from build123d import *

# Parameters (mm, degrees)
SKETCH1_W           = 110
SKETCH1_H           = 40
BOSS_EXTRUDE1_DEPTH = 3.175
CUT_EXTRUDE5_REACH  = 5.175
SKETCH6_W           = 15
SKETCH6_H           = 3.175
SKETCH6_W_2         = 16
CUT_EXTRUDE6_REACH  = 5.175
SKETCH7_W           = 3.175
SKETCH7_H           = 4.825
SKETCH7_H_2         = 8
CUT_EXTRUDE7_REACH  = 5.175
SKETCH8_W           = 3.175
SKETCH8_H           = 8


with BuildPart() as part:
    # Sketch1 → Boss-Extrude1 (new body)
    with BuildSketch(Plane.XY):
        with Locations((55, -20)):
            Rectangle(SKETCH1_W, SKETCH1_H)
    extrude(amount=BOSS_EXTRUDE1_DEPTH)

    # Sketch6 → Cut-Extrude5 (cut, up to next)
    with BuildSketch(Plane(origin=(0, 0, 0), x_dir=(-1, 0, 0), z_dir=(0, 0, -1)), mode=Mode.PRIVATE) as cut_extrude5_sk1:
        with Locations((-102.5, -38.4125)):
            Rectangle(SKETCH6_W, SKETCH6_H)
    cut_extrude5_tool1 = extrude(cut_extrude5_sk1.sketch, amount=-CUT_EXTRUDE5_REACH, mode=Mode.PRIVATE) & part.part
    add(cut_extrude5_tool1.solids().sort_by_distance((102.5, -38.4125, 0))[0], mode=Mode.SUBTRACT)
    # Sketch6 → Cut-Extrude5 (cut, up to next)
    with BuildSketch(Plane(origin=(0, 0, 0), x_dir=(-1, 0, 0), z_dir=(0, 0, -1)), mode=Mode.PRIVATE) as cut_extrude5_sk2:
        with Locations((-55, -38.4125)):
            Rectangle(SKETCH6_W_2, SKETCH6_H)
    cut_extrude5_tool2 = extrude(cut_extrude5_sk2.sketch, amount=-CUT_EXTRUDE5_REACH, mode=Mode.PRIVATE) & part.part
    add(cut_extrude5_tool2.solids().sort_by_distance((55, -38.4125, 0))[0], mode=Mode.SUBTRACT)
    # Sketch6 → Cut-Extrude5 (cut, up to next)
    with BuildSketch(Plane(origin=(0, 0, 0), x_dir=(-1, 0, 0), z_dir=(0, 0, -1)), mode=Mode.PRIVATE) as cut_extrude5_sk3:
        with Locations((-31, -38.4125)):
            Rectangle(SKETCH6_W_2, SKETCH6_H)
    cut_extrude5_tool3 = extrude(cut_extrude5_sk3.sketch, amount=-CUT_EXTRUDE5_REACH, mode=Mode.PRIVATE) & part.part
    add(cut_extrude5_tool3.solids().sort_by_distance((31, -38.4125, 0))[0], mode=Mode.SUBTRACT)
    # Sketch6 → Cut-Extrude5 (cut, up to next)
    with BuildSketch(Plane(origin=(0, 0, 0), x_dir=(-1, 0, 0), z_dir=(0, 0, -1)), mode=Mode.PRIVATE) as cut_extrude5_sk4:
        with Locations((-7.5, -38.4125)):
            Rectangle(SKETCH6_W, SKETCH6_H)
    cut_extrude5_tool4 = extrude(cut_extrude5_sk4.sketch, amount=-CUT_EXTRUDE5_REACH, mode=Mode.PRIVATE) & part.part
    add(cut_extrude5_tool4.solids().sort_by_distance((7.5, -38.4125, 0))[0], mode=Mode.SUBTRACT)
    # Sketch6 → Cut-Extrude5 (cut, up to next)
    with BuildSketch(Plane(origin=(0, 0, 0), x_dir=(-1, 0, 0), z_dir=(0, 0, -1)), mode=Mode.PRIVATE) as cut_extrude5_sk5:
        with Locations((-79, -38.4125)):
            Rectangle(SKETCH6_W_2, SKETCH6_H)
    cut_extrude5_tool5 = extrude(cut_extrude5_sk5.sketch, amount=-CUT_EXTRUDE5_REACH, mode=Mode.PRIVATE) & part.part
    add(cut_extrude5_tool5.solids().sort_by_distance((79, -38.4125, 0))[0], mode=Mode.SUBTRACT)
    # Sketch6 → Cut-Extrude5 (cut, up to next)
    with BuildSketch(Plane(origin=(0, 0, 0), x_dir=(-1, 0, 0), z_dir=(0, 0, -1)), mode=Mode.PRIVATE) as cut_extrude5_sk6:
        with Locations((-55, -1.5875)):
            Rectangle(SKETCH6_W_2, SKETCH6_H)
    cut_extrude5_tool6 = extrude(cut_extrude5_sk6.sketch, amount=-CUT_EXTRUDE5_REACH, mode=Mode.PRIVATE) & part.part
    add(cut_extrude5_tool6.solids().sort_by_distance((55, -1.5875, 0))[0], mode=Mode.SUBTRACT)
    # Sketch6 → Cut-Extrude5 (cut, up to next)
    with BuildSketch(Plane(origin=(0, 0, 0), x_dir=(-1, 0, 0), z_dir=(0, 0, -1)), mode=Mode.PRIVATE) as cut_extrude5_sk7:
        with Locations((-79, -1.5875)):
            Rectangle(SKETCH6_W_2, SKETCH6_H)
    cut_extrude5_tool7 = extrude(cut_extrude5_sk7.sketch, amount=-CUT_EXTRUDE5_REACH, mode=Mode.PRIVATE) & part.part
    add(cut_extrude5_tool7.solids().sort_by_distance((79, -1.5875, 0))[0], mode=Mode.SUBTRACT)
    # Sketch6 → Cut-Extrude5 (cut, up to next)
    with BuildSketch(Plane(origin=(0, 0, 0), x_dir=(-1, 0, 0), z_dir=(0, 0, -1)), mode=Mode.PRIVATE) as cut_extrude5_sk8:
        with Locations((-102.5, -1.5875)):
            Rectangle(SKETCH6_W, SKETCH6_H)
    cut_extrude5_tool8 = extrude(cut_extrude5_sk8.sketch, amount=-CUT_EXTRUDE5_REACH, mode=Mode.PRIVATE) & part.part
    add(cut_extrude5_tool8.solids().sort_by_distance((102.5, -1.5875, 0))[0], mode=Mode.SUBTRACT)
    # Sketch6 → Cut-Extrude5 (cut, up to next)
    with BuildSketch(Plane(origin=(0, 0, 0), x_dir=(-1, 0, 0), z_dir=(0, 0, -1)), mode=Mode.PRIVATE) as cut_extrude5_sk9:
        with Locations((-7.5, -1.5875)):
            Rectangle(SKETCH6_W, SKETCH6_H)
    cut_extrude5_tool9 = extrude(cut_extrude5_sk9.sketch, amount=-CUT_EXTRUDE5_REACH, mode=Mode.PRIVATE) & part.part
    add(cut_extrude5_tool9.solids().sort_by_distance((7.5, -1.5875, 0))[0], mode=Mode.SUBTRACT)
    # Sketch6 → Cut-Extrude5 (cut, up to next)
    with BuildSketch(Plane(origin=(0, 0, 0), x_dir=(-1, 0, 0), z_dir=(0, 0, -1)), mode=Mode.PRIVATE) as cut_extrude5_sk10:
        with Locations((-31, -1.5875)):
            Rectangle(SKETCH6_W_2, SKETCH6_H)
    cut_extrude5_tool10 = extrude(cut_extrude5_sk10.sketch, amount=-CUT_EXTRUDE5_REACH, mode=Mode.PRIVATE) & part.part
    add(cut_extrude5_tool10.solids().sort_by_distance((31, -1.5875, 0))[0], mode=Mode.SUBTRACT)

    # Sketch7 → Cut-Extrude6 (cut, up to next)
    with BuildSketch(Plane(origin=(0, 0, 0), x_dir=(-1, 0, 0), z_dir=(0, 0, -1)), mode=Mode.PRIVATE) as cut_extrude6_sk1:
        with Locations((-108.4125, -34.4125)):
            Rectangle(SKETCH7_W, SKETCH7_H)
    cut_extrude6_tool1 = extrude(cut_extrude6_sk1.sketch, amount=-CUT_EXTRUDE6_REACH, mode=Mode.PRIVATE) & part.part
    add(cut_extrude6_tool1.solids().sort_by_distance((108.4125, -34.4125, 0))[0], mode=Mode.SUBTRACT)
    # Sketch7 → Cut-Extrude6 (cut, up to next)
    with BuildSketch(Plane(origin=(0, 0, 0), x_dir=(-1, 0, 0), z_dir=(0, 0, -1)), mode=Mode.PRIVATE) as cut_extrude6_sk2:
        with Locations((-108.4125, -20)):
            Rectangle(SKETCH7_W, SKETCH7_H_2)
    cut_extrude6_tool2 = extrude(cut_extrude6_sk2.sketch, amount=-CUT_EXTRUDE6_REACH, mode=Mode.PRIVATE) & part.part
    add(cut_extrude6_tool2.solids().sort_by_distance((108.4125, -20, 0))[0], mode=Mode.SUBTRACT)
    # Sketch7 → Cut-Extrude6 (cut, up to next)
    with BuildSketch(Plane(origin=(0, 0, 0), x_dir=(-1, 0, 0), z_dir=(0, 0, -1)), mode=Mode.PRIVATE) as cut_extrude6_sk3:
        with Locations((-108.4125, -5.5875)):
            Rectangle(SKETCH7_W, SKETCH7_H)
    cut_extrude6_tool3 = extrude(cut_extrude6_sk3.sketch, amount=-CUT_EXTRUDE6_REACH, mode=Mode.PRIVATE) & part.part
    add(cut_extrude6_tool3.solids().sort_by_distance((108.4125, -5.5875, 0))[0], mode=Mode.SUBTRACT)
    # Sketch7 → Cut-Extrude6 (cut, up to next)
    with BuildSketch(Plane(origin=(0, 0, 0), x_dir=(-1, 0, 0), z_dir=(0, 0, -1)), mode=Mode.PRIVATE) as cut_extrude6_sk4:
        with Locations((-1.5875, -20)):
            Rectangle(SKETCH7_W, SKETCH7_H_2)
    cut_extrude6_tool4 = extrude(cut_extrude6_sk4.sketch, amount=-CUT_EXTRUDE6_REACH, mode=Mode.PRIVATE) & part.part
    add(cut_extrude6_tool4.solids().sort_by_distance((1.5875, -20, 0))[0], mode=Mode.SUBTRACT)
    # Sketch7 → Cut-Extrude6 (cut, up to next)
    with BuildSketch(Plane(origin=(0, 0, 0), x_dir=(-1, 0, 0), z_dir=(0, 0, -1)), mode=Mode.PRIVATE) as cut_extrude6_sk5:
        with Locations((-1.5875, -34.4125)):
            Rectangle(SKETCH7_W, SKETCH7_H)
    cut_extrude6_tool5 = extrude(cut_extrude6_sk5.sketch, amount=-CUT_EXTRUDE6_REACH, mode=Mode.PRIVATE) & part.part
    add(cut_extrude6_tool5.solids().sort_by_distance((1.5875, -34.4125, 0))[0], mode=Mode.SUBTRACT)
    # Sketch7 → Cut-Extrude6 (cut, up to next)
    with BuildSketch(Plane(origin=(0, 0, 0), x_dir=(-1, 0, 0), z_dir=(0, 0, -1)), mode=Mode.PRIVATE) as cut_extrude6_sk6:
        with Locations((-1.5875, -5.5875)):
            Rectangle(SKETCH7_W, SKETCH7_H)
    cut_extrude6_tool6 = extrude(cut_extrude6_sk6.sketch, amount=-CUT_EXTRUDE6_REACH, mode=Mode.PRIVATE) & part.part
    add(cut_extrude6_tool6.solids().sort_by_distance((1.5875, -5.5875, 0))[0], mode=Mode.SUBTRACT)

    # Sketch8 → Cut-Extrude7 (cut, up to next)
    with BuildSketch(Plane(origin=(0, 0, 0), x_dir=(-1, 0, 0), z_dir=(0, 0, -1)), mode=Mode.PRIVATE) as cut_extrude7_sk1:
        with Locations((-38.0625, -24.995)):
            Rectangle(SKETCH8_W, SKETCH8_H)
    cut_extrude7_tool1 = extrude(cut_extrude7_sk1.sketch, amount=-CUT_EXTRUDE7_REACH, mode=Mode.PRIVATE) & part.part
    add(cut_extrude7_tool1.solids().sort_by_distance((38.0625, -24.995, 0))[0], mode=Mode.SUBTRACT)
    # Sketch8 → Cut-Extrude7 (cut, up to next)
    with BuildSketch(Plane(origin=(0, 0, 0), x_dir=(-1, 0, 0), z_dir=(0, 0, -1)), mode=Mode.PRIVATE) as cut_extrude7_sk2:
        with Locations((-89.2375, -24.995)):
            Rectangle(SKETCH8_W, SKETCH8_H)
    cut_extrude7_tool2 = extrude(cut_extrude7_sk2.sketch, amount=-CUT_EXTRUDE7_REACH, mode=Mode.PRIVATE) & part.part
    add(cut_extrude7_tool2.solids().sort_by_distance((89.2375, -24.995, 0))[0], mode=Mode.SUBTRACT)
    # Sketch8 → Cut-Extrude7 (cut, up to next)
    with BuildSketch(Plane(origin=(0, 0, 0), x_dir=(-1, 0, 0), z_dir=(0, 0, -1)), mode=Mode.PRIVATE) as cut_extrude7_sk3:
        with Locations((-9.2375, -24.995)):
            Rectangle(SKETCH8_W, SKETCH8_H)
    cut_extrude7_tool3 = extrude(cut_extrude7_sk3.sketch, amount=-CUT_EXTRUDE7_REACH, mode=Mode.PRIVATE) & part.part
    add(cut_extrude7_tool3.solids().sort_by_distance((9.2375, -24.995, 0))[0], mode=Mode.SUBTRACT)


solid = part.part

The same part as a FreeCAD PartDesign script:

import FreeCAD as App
import Part
import Sketcher
Q = App.Units.Quantity

doc = App.newDocument("Part")
body = doc.addObject("PartDesign::Body", "Body")

# Sketch on XY plane
sketch1 = body.newObject("Sketcher::SketchObject", "Sketch")
sketch1.AttachmentSupport = (doc.getObject("XY_Plane"), [""])
sketch1.MapMode = "FlatFace"
sketch1.addGeometry([
    Part.LineSegment(App.Vector(0, 0, 0), App.Vector(0, -40, 0)),
    Part.LineSegment(App.Vector(0, -40, 0), App.Vector(110, -40, 0)),
    Part.LineSegment(App.Vector(110, -40, 0), App.Vector(110, 0, 0)),
    Part.LineSegment(App.Vector(110, 0, 0), App.Vector(0, 0, 0)),
], False)
sketch1.addConstraint([
    Sketcher.Constraint("Coincident", 0, 2, 1, 1),
    Sketcher.Constraint("Coincident", 1, 2, 2, 1),
    Sketcher.Constraint("Coincident", 2, 2, 3, 1),
    Sketcher.Constraint("Coincident", 3, 2, 0, 1),
    Sketcher.Constraint("Vertical", 0),
    Sketcher.Constraint("Horizontal", 1),
    Sketcher.Constraint("Vertical", 2),
    Sketcher.Constraint("Horizontal", 3),
    Sketcher.Constraint("Coincident", 3, 2, -1, 1),
    Sketcher.Constraint("DistanceX", 1, 1, 1, 2, Q("110 mm")),
    Sketcher.Constraint("DistanceY", 0, 2, 0, 1, Q("40 mm")),
])
pad1 = body.newObject("PartDesign::Pad", "Pad")
pad1.Profile = sketch1
pad1.Length = 3.175

# Sketch on XY plane
sketch2 = body.newObject("Sketcher::SketchObject", "Sketch001")
sketch2.AttachmentSupport = (doc.getObject("XY_Plane"), [""])
sketch2.MapMode = "FlatFace"
sketch2.addGeometry([
    Part.LineSegment(App.Vector(110, -36.8, 0), App.Vector(110, -40, 0)),
    Part.LineSegment(App.Vector(110, -40, 0), App.Vector(95, -40, 0)),
    Part.LineSegment(App.Vector(95, -40, 0), App.Vector(95, -36.8, 0)),
    Part.LineSegment(App.Vector(95, -36.8, 0), App.Vector(110, -36.8, 0)),
], False)
sketch2.addConstraint([
    Sketcher.Constraint("Coincident", 0, 2, 1, 1),
    Sketcher.Constraint("Coincident", 1, 2, 2, 1),
    Sketcher.Constraint("Coincident", 2, 2, 3, 1),
    Sketcher.Constraint("Coincident", 3, 2, 0, 1),
    Sketcher.Constraint("Vertical", 0),
    Sketcher.Constraint("Horizontal", 1),
    Sketcher.Constraint("Vertical", 2),
    Sketcher.Constraint("Horizontal", 3),
    Sketcher.Constraint("DistanceX", 1, 2, 1, 1, Q("15 mm")),
    Sketcher.Constraint("DistanceX", -1, 1, 0, 2, Q("110 mm")),
    Sketcher.Constraint("DistanceY", 0, 2, -1, 1, Q("40 mm")),
    Sketcher.Constraint("DistanceY", 0, 2, 0, 1, Q("3.175 mm")),
])
pocket1 = body.newObject("PartDesign::Pocket", "Pocket")
pocket1.Profile = sketch2
pocket1.Type = "UpToFirst"
pocket1.Reversed = True

# Sketch on XY plane
sketch3 = body.newObject("Sketcher::SketchObject", "Sketch002")
sketch3.AttachmentSupport = (doc.getObject("XY_Plane"), [""])
sketch3.MapMode = "FlatFace"
sketch3.addGeometry([
    Part.LineSegment(App.Vector(63, -36.8, 0), App.Vector(63, -40, 0)),
    Part.LineSegment(App.Vector(63, -40, 0), App.Vector(47, -40, 0)),
    Part.LineSegment(App.Vector(47, -40, 0), App.Vector(47, -36.8, 0)),
    Part.LineSegment(App.Vector(47, -36.8, 0), App.Vector(63, -36.8, 0)),
], False)
sketch3.addConstraint([
    Sketcher.Constraint("Coincident", 0, 2, 1, 1),
    Sketcher.Constraint("Coincident", 1, 2, 2, 1),
    Sketcher.Constraint("Coincident", 2, 2, 3, 1),
    Sketcher.Constraint("Coincident", 3, 2, 0, 1),
    Sketcher.Constraint("Vertical", 0),
    Sketcher.Constraint("Horizontal", 1),
    Sketcher.Constraint("Vertical", 2),
    Sketcher.Constraint("Horizontal", 3),
    Sketcher.Constraint("DistanceX", 1, 2, 1, 1, Q("16 mm")),
    Sketcher.Constraint("DistanceX", -1, 1, 0, 2, Q("63 mm")),
    Sketcher.Constraint("DistanceY", 0, 2, -1, 1, Q("40 mm")),
    Sketcher.Constraint("DistanceY", 0, 2, 0, 1, Q("3.175 mm")),
])
pocket2 = body.newObject("PartDesign::Pocket", "Pocket001")
pocket2.Profile = sketch3
pocket2.Type = "UpToFirst"
pocket2.Reversed = True

# Sketch on XY plane
sketch4 = body.newObject("Sketcher::SketchObject", "Sketch003")
sketch4.AttachmentSupport = (doc.getObject("XY_Plane"), [""])
sketch4.MapMode = "FlatFace"
sketch4.addGeometry([
    Part.LineSegment(App.Vector(39, -36.8, 0), App.Vector(39, -40, 0)),
    Part.LineSegment(App.Vector(39, -40, 0), App.Vector(23, -40, 0)),
    Part.LineSegment(App.Vector(23, -40, 0), App.Vector(23, -36.8, 0)),
    Part.LineSegment(App.Vector(23, -36.8, 0), App.Vector(39, -36.8, 0)),
], False)
sketch4.addConstraint([
    Sketcher.Constraint("Coincident", 0, 2, 1, 1),
    Sketcher.Constraint("Coincident", 1, 2, 2, 1),
    Sketcher.Constraint("Coincident", 2, 2, 3, 1),
    Sketcher.Constraint("Coincident", 3, 2, 0, 1),
    Sketcher.Constraint("Vertical", 0),
    Sketcher.Constraint("Horizontal", 1),
    Sketcher.Constraint("Vertical", 2),
    Sketcher.Constraint("Horizontal", 3),
    Sketcher.Constraint("DistanceX", 1, 2, 1, 1, Q("16 mm")),
    Sketcher.Constraint("DistanceX", -1, 1, 0, 2, Q("39 mm")),
    Sketcher.Constraint("DistanceY", 0, 2, -1, 1, Q("40 mm")),
    Sketcher.Constraint("DistanceY", 0, 2, 0, 1, Q("3.175 mm")),
])
pocket3 = body.newObject("PartDesign::Pocket", "Pocket002")
pocket3.Profile = sketch4
pocket3.Type = "UpToFirst"
pocket3.Reversed = True

# Sketch on XY plane
sketch5 = body.newObject("Sketcher::SketchObject", "Sketch004")
sketch5.AttachmentSupport = (doc.getObject("XY_Plane"), [""])
sketch5.MapMode = "FlatFace"
sketch5.addGeometry([
    Part.LineSegment(App.Vector(15, -36.8, 0), App.Vector(15, -40, 0)),
    Part.LineSegment(App.Vector(15, -40, 0), App.Vector(0, -40, 0)),
    Part.LineSegment(App.Vector(0, -40, 0), App.Vector(0, -36.8, 0)),
    Part.LineSegment(App.Vector(0, -36.8, 0), App.Vector(15, -36.8, 0)),
], False)
sketch5.addConstraint([
    Sketcher.Constraint("Coincident", 0, 2, 1, 1),
    Sketcher.Constraint("Coincident", 1, 2, 2, 1),
    Sketcher.Constraint("Coincident", 2, 2, 3, 1),
    Sketcher.Constraint("Coincident", 3, 2, 0, 1),
    Sketcher.Constraint("Vertical", 0),
    Sketcher.Constraint("Horizontal", 1),
    Sketcher.Constraint("Vertical", 2),
    Sketcher.Constraint("Horizontal", 3),
    Sketcher.Constraint("PointOnObject", 1, 2, -2),
    Sketcher.Constraint("DistanceX", 1, 2, 1, 1, Q("15 mm")),
    Sketcher.Constraint("DistanceY", 0, 2, -1, 1, Q("40 mm")),
    Sketcher.Constraint("DistanceY", 0, 2, 0, 1, Q("3.175 mm")),
])
pocket4 = body.newObject("PartDesign::Pocket", "Pocket003")
pocket4.Profile = sketch5
pocket4.Type = "UpToFirst"
pocket4.Reversed = True

# Sketch on XY plane
sketch6 = body.newObject("Sketcher::SketchObject", "Sketch005")
sketch6.AttachmentSupport = (doc.getObject("XY_Plane"), [""])
sketch6.MapMode = "FlatFace"
sketch6.addGeometry([
    Part.LineSegment(App.Vector(87, -36.8, 0), App.Vector(87, -40, 0)),
    Part.LineSegment(App.Vector(87, -40, 0), App.Vector(71, -40, 0)),
    Part.LineSegment(App.Vector(71, -40, 0), App.Vector(71, -36.8, 0)),
    Part.LineSegment(App.Vector(71, -36.8, 0), App.Vector(87, -36.8, 0)),
], False)
sketch6.addConstraint([
    Sketcher.Constraint("Coincident", 0, 2, 1, 1),
    Sketcher.Constraint("Coincident", 1, 2, 2, 1),
    Sketcher.Constraint("Coincident", 2, 2, 3, 1),
    Sketcher.Constraint("Coincident", 3, 2, 0, 1),
    Sketcher.Constraint("Vertical", 0),
    Sketcher.Constraint("Horizontal", 1),
    Sketcher.Constraint("Vertical", 2),
    Sketcher.Constraint("Horizontal", 3),
    Sketcher.Constraint("DistanceX", 1, 2, 1, 1, Q("16 mm")),
    Sketcher.Constraint("DistanceX", -1, 1, 0, 2, Q("87 mm")),
    Sketcher.Constraint("DistanceY", 0, 2, -1, 1, Q("40 mm")),
    Sketcher.Constraint("DistanceY", 0, 2, 0, 1, Q("3.175 mm")),
])
pocket5 = body.newObject("PartDesign::Pocket", "Pocket004")
pocket5.Profile = sketch6
pocket5.Type = "UpToFirst"
pocket5.Reversed = True

# Sketch on XY plane
sketch7 = body.newObject("Sketcher::SketchObject", "Sketch006")
sketch7.AttachmentSupport = (doc.getObject("XY_Plane"), [""])
sketch7.MapMode = "FlatFace"
sketch7.addGeometry([
    Part.LineSegment(App.Vector(63, 0, 0), App.Vector(63, -3.2, 0)),
    Part.LineSegment(App.Vector(63, -3.2, 0), App.Vector(47, -3.2, 0)),
    Part.LineSegment(App.Vector(47, -3.2, 0), App.Vector(47, 0, 0)),
    Part.LineSegment(App.Vector(47, 0, 0), App.Vector(63, 0, 0)),
], False)
sketch7.addConstraint([
    Sketcher.Constraint("Coincident", 0, 2, 1, 1),
    Sketcher.Constraint("Coincident", 1, 2, 2, 1),
    Sketcher.Constraint("Coincident", 2, 2, 3, 1),
    Sketcher.Constraint("Coincident", 3, 2, 0, 1),
    Sketcher.Constraint("Vertical", 0),
    Sketcher.Constraint("Horizontal", 1),
    Sketcher.Constraint("Vertical", 2),
    Sketcher.Constraint("Horizontal", 3),
    Sketcher.Constraint("PointOnObject", 2, 2, -1),
    Sketcher.Constraint("DistanceX", 1, 2, 1, 1, Q("16 mm")),
    Sketcher.Constraint("DistanceX", -1, 1, 0, 2, Q("63 mm")),
    Sketcher.Constraint("DistanceY", 0, 2, 0, 1, Q("3.175 mm")),
])
pocket6 = body.newObject("PartDesign::Pocket", "Pocket005")
pocket6.Profile = sketch7
pocket6.Type = "UpToFirst"
pocket6.Reversed = True

# Sketch on XY plane
sketch8 = body.newObject("Sketcher::SketchObject", "Sketch007")
sketch8.AttachmentSupport = (doc.getObject("XY_Plane"), [""])
sketch8.MapMode = "FlatFace"
sketch8.addGeometry([
    Part.LineSegment(App.Vector(87, 0, 0), App.Vector(87, -3.2, 0)),
    Part.LineSegment(App.Vector(87, -3.2, 0), App.Vector(71, -3.2, 0)),
    Part.LineSegment(App.Vector(71, -3.2, 0), App.Vector(71, 0, 0)),
    Part.LineSegment(App.Vector(71, 0, 0), App.Vector(87, 0, 0)),
], False)
sketch8.addConstraint([
    Sketcher.Constraint("Coincident", 0, 2, 1, 1),
    Sketcher.Constraint("Coincident", 1, 2, 2, 1),
    Sketcher.Constraint("Coincident", 2, 2, 3, 1),
    Sketcher.Constraint("Coincident", 3, 2, 0, 1),
    Sketcher.Constraint("Vertical", 0),
    Sketcher.Constraint("Horizontal", 1),
    Sketcher.Constraint("Vertical", 2),
    Sketcher.Constraint("Horizontal", 3),
    Sketcher.Constraint("PointOnObject", 2, 2, -1),
    Sketcher.Constraint("DistanceX", 1, 2, 1, 1, Q("16 mm")),
    Sketcher.Constraint("DistanceX", -1, 1, 0, 2, Q("87 mm")),
    Sketcher.Constraint("DistanceY", 0, 2, 0, 1, Q("3.175 mm")),
])
pocket7 = body.newObject("PartDesign::Pocket", "Pocket006")
pocket7.Profile = sketch8
pocket7.Type = "UpToFirst"
pocket7.Reversed = True

# Sketch on XY plane
sketch9 = body.newObject("Sketcher::SketchObject", "Sketch008")
sketch9.AttachmentSupport = (doc.getObject("XY_Plane"), [""])
sketch9.MapMode = "FlatFace"
sketch9.addGeometry([
    Part.LineSegment(App.Vector(110, 0, 0), App.Vector(110, -3.2, 0)),
    Part.LineSegment(App.Vector(110, -3.2, 0), App.Vector(95, -3.2, 0)),
    Part.LineSegment(App.Vector(95, -3.2, 0), App.Vector(95, 0, 0)),
    Part.LineSegment(App.Vector(95, 0, 0), App.Vector(110, 0, 0)),
], False)
sketch9.addConstraint([
    Sketcher.Constraint("Coincident", 0, 2, 1, 1),
    Sketcher.Constraint("Coincident", 1, 2, 2, 1),
    Sketcher.Constraint("Coincident", 2, 2, 3, 1),
    Sketcher.Constraint("Coincident", 3, 2, 0, 1),
    Sketcher.Constraint("Vertical", 0),
    Sketcher.Constraint("Horizontal", 1),
    Sketcher.Constraint("Vertical", 2),
    Sketcher.Constraint("Horizontal", 3),
    Sketcher.Constraint("PointOnObject", 2, 2, -1),
    Sketcher.Constraint("DistanceX", 1, 2, 1, 1, Q("15 mm")),
    Sketcher.Constraint("DistanceX", -1, 1, 0, 2, Q("110 mm")),
    Sketcher.Constraint("DistanceY", 0, 2, 0, 1, Q("3.175 mm")),
])
pocket8 = body.newObject("PartDesign::Pocket", "Pocket007")
pocket8.Profile = sketch9
pocket8.Type = "UpToFirst"
pocket8.Reversed = True

# Sketch on XY plane
sketch10 = body.newObject("Sketcher::SketchObject", "Sketch009")
sketch10.AttachmentSupport = (doc.getObject("XY_Plane"), [""])
sketch10.MapMode = "FlatFace"
sketch10.addGeometry([
    Part.LineSegment(App.Vector(15, 0, 0), App.Vector(15, -3.2, 0)),
    Part.LineSegment(App.Vector(15, -3.2, 0), App.Vector(0, -3.2, 0)),
    Part.LineSegment(App.Vector(0, -3.2, 0), App.Vector(0, 0, 0)),
    Part.LineSegment(App.Vector(0, 0, 0), App.Vector(15, 0, 0)),
], False)
sketch10.addConstraint([
    Sketcher.Constraint("Coincident", 0, 2, 1, 1),
    Sketcher.Constraint("Coincident", 1, 2, 2, 1),
    Sketcher.Constraint("Coincident", 2, 2, 3, 1),
    Sketcher.Constraint("Coincident", 3, 2, 0, 1),
    Sketcher.Constraint("Vertical", 0),
    Sketcher.Constraint("Horizontal", 1),
    Sketcher.Constraint("Vertical", 2),
    Sketcher.Constraint("Horizontal", 3),
    Sketcher.Constraint("Coincident", 2, 2, -1, 1),
    Sketcher.Constraint("DistanceX", 1, 2, 1, 1, Q("15 mm")),
    Sketcher.Constraint("DistanceY", 0, 2, 0, 1, Q("3.175 mm")),
])
pocket9 = body.newObject("PartDesign::Pocket", "Pocket008")
pocket9.Profile = sketch10
pocket9.Type = "UpToFirst"
pocket9.Reversed = True

# Sketch on XY plane
sketch11 = body.newObject("Sketcher::SketchObject", "Sketch010")
sketch11.AttachmentSupport = (doc.getObject("XY_Plane"), [""])
sketch11.MapMode = "FlatFace"
sketch11.addGeometry([
    Part.LineSegment(App.Vector(39, 0, 0), App.Vector(39, -3.2, 0)),
    Part.LineSegment(App.Vector(39, -3.2, 0), App.Vector(23, -3.2, 0)),
    Part.LineSegment(App.Vector(23, -3.2, 0), App.Vector(23, 0, 0)),
    Part.LineSegment(App.Vector(23, 0, 0), App.Vector(39, 0, 0)),
], False)
sketch11.addConstraint([
    Sketcher.Constraint("Coincident", 0, 2, 1, 1),
    Sketcher.Constraint("Coincident", 1, 2, 2, 1),
    Sketcher.Constraint("Coincident", 2, 2, 3, 1),
    Sketcher.Constraint("Coincident", 3, 2, 0, 1),
    Sketcher.Constraint("Vertical", 0),
    Sketcher.Constraint("Horizontal", 1),
    Sketcher.Constraint("Vertical", 2),
    Sketcher.Constraint("Horizontal", 3),
    Sketcher.Constraint("PointOnObject", 2, 2, -1),
    Sketcher.Constraint("DistanceX", 1, 2, 1, 1, Q("16 mm")),
    Sketcher.Constraint("DistanceX", -1, 1, 0, 2, Q("39 mm")),
    Sketcher.Constraint("DistanceY", 0, 2, 0, 1, Q("3.175 mm")),
])
pocket10 = body.newObject("PartDesign::Pocket", "Pocket009")
pocket10.Profile = sketch11
pocket10.Type = "UpToFirst"
pocket10.Reversed = True

# Sketch on XY plane
sketch12 = body.newObject("Sketcher::SketchObject", "Sketch011")
sketch12.AttachmentSupport = (doc.getObject("XY_Plane"), [""])
sketch12.MapMode = "FlatFace"
sketch12.addGeometry([
    Part.LineSegment(App.Vector(110, -32, 0), App.Vector(110, -36.8, 0)),
    Part.LineSegment(App.Vector(110, -36.8, 0), App.Vector(106.8, -36.8, 0)),
    Part.LineSegment(App.Vector(106.8, -36.8, 0), App.Vector(106.8, -32, 0)),
    Part.LineSegment(App.Vector(106.8, -32, 0), App.Vector(110, -32, 0)),
], False)
sketch12.addConstraint([
    Sketcher.Constraint("Coincident", 0, 2, 1, 1),
    Sketcher.Constraint("Coincident", 1, 2, 2, 1),
    Sketcher.Constraint("Coincident", 2, 2, 3, 1),
    Sketcher.Constraint("Coincident", 3, 2, 0, 1),
    Sketcher.Constraint("Vertical", 0),
    Sketcher.Constraint("Horizontal", 1),
    Sketcher.Constraint("Vertical", 2),
    Sketcher.Constraint("Horizontal", 3),
    Sketcher.Constraint("DistanceX", -1, 1, 0, 2, Q("110 mm")),
    Sketcher.Constraint("DistanceY", 2, 2, -1, 1, Q("32 mm")),
    Sketcher.Constraint("DistanceX", 1, 2, 1, 1, Q("3.175 mm")),
    Sketcher.Constraint("DistanceY", 0, 2, 0, 1, Q("4.825 mm")),
])
pocket11 = body.newObject("PartDesign::Pocket", "Pocket010")
pocket11.Profile = sketch12
pocket11.Type = "UpToFirst"
pocket11.Reversed = True

# Sketch on XY plane
sketch13 = body.newObject("Sketcher::SketchObject", "Sketch012")
sketch13.AttachmentSupport = (doc.getObject("XY_Plane"), [""])
sketch13.MapMode = "FlatFace"
sketch13.addGeometry([
    Part.LineSegment(App.Vector(110, -16, 0), App.Vector(110, -24, 0)),
    Part.LineSegment(App.Vector(110, -24, 0), App.Vector(106.8, -24, 0)),
    Part.LineSegment(App.Vector(106.8, -24, 0), App.Vector(106.8, -16, 0)),
    Part.LineSegment(App.Vector(106.8, -16, 0), App.Vector(110, -16, 0)),
], False)
sketch13.addConstraint([
    Sketcher.Constraint("Coincident", 0, 2, 1, 1),
    Sketcher.Constraint("Coincident", 1, 2, 2, 1),
    Sketcher.Constraint("Coincident", 2, 2, 3, 1),
    Sketcher.Constraint("Coincident", 3, 2, 0, 1),
    Sketcher.Constraint("Vertical", 0),
    Sketcher.Constraint("Horizontal", 1),
    Sketcher.Constraint("Vertical", 2),
    Sketcher.Constraint("Horizontal", 3),
    Sketcher.Constraint("DistanceY", 0, 2, 0, 1, Q("8 mm")),
    Sketcher.Constraint("DistanceX", -1, 1, 0, 2, Q("110 mm")),
    Sketcher.Constraint("DistanceY", 0, 2, -1, 1, Q("24 mm")),
    Sketcher.Constraint("DistanceX", 1, 2, 1, 1, Q("3.175 mm")),
])
pocket12 = body.newObject("PartDesign::Pocket", "Pocket011")
pocket12.Profile = sketch13
pocket12.Type = "UpToFirst"
pocket12.Reversed = True

# Sketch on XY plane
sketch14 = body.newObject("Sketcher::SketchObject", "Sketch013")
sketch14.AttachmentSupport = (doc.getObject("XY_Plane"), [""])
sketch14.MapMode = "FlatFace"
sketch14.addGeometry([
    Part.LineSegment(App.Vector(110, -3.2, 0), App.Vector(110, -8, 0)),
    Part.LineSegment(App.Vector(110, -8, 0), App.Vector(106.8, -8, 0)),
    Part.LineSegment(App.Vector(106.8, -8, 0), App.Vector(106.8, -3.2, 0)),
    Part.LineSegment(App.Vector(106.8, -3.2, 0), App.Vector(110, -3.2, 0)),
], False)
sketch14.addConstraint([
    Sketcher.Constraint("Coincident", 0, 2, 1, 1),
    Sketcher.Constraint("Coincident", 1, 2, 2, 1),
    Sketcher.Constraint("Coincident", 2, 2, 3, 1),
    Sketcher.Constraint("Coincident", 3, 2, 0, 1),
    Sketcher.Constraint("Vertical", 0),
    Sketcher.Constraint("Horizontal", 1),
    Sketcher.Constraint("Vertical", 2),
    Sketcher.Constraint("Horizontal", 3),
    Sketcher.Constraint("DistanceX", -1, 1, 0, 2, Q("110 mm")),
    Sketcher.Constraint("DistanceY", 0, 2, -1, 1, Q("8 mm")),
    Sketcher.Constraint("DistanceX", 1, 2, 1, 1, Q("3.175 mm")),
    Sketcher.Constraint("DistanceY", 0, 2, 0, 1, Q("4.825 mm")),
])
pocket13 = body.newObject("PartDesign::Pocket", "Pocket012")
pocket13.Profile = sketch14
pocket13.Type = "UpToFirst"
pocket13.Reversed = True

# Sketch on XY plane
sketch15 = body.newObject("Sketcher::SketchObject", "Sketch014")
sketch15.AttachmentSupport = (doc.getObject("XY_Plane"), [""])
sketch15.MapMode = "FlatFace"
sketch15.addGeometry([
    Part.LineSegment(App.Vector(3.2, -16, 0), App.Vector(3.2, -24, 0)),
    Part.LineSegment(App.Vector(3.2, -24, 0), App.Vector(0, -24, 0)),
    Part.LineSegment(App.Vector(0, -24, 0), App.Vector(0, -16, 0)),
    Part.LineSegment(App.Vector(0, -16, 0), App.Vector(3.2, -16, 0)),
], False)
sketch15.addConstraint([
    Sketcher.Constraint("Coincident", 0, 2, 1, 1),
    Sketcher.Constraint("Coincident", 1, 2, 2, 1),
    Sketcher.Constraint("Coincident", 2, 2, 3, 1),
    Sketcher.Constraint("Coincident", 3, 2, 0, 1),
    Sketcher.Constraint("Vertical", 0),
    Sketcher.Constraint("Horizontal", 1),
    Sketcher.Constraint("Vertical", 2),
    Sketcher.Constraint("Horizontal", 3),
    Sketcher.Constraint("PointOnObject", 1, 2, -2),
    Sketcher.Constraint("DistanceY", 0, 2, 0, 1, Q("8 mm")),
    Sketcher.Constraint("DistanceY", 0, 2, -1, 1, Q("24 mm")),
    Sketcher.Constraint("DistanceX", 1, 2, 1, 1, Q("3.175 mm")),
])
pocket14 = body.newObject("PartDesign::Pocket", "Pocket013")
pocket14.Profile = sketch15
pocket14.Type = "UpToFirst"
pocket14.Reversed = True

# Sketch on XY plane
sketch16 = body.newObject("Sketcher::SketchObject", "Sketch015")
sketch16.AttachmentSupport = (doc.getObject("XY_Plane"), [""])
sketch16.MapMode = "FlatFace"
sketch16.addGeometry([
    Part.LineSegment(App.Vector(3.2, -32, 0), App.Vector(3.2, -36.8, 0)),
    Part.LineSegment(App.Vector(3.2, -36.8, 0), App.Vector(0, -36.8, 0)),
    Part.LineSegment(App.Vector(0, -36.8, 0), App.Vector(0, -32, 0)),
    Part.LineSegment(App.Vector(0, -32, 0), App.Vector(3.2, -32, 0)),
], False)
sketch16.addConstraint([
    Sketcher.Constraint("Coincident", 0, 2, 1, 1),
    Sketcher.Constraint("Coincident", 1, 2, 2, 1),
    Sketcher.Constraint("Coincident", 2, 2, 3, 1),
    Sketcher.Constraint("Coincident", 3, 2, 0, 1),
    Sketcher.Constraint("Vertical", 0),
    Sketcher.Constraint("Horizontal", 1),
    Sketcher.Constraint("Vertical", 2),
    Sketcher.Constraint("Horizontal", 3),
    Sketcher.Constraint("PointOnObject", 1, 2, -2),
    Sketcher.Constraint("DistanceY", 2, 2, -1, 1, Q("32 mm")),
    Sketcher.Constraint("DistanceX", 1, 2, 1, 1, Q("3.175 mm")),
    Sketcher.Constraint("DistanceY", 0, 2, 0, 1, Q("4.825 mm")),
])
pocket15 = body.newObject("PartDesign::Pocket", "Pocket014")
pocket15.Profile = sketch16
pocket15.Type = "UpToFirst"
pocket15.Reversed = True

# Sketch on XY plane
sketch17 = body.newObject("Sketcher::SketchObject", "Sketch016")
sketch17.AttachmentSupport = (doc.getObject("XY_Plane"), [""])
sketch17.MapMode = "FlatFace"
sketch17.addGeometry([
    Part.LineSegment(App.Vector(3.2, -3.2, 0), App.Vector(3.2, -8, 0)),
    Part.LineSegment(App.Vector(3.2, -8, 0), App.Vector(0, -8, 0)),
    Part.LineSegment(App.Vector(0, -8, 0), App.Vector(0, -3.2, 0)),
    Part.LineSegment(App.Vector(0, -3.2, 0), App.Vector(3.2, -3.2, 0)),
], False)
sketch17.addConstraint([
    Sketcher.Constraint("Coincident", 0, 2, 1, 1),
    Sketcher.Constraint("Coincident", 1, 2, 2, 1),
    Sketcher.Constraint("Coincident", 2, 2, 3, 1),
    Sketcher.Constraint("Coincident", 3, 2, 0, 1),
    Sketcher.Constraint("Vertical", 0),
    Sketcher.Constraint("Horizontal", 1),
    Sketcher.Constraint("Vertical", 2),
    Sketcher.Constraint("Horizontal", 3),
    Sketcher.Constraint("PointOnObject", 1, 2, -2),
    Sketcher.Constraint("DistanceY", 0, 2, -1, 1, Q("8 mm")),
    Sketcher.Constraint("DistanceX", 1, 2, 1, 1, Q("3.175 mm")),
    Sketcher.Constraint("DistanceY", 0, 2, 0, 1, Q("4.825 mm")),
])
pocket16 = body.newObject("PartDesign::Pocket", "Pocket015")
pocket16.Profile = sketch17
pocket16.Type = "UpToFirst"
pocket16.Reversed = True

# Sketch on XY plane
sketch18 = body.newObject("Sketcher::SketchObject", "Sketch017")
sketch18.AttachmentSupport = (doc.getObject("XY_Plane"), [""])
sketch18.MapMode = "FlatFace"
sketch18.addGeometry([
    Part.LineSegment(App.Vector(39.6, -21, 0), App.Vector(39.6, -29, 0)),
    Part.LineSegment(App.Vector(39.6, -29, 0), App.Vector(36.5, -29, 0)),
    Part.LineSegment(App.Vector(36.5, -29, 0), App.Vector(36.5, -21, 0)),
    Part.LineSegment(App.Vector(36.5, -21, 0), App.Vector(39.6, -21, 0)),
], False)
sketch18.addConstraint([
    Sketcher.Constraint("Coincident", 0, 2, 1, 1),
    Sketcher.Constraint("Coincident", 1, 2, 2, 1),
    Sketcher.Constraint("Coincident", 2, 2, 3, 1),
    Sketcher.Constraint("Coincident", 3, 2, 0, 1),
    Sketcher.Constraint("Vertical", 0),
    Sketcher.Constraint("Horizontal", 1),
    Sketcher.Constraint("Vertical", 2),
    Sketcher.Constraint("Horizontal", 3),
    Sketcher.Constraint("DistanceY", 0, 2, 0, 1, Q("8 mm")),
    Sketcher.Constraint("DistanceX", 1, 2, 1, 1, Q("3.175 mm")),
    Sketcher.Constraint("DistanceX", -1, 1, 0, 2, Q("39.65 mm")),
    Sketcher.Constraint("DistanceY", 0, 2, -1, 1, Q("28.995 mm")),
])
pocket17 = body.newObject("PartDesign::Pocket", "Pocket016")
pocket17.Profile = sketch18
pocket17.Type = "UpToFirst"
pocket17.Reversed = True

# Sketch on XY plane
sketch19 = body.newObject("Sketcher::SketchObject", "Sketch018")
sketch19.AttachmentSupport = (doc.getObject("XY_Plane"), [""])
sketch19.MapMode = "FlatFace"
sketch19.addGeometry([
    Part.LineSegment(App.Vector(90.8, -21, 0), App.Vector(90.8, -29, 0)),
    Part.LineSegment(App.Vector(90.8, -29, 0), App.Vector(87.7, -29, 0)),
    Part.LineSegment(App.Vector(87.7, -29, 0), App.Vector(87.7, -21, 0)),
    Part.LineSegment(App.Vector(87.7, -21, 0), App.Vector(90.8, -21, 0)),
], False)
sketch19.addConstraint([
    Sketcher.Constraint("Coincident", 0, 2, 1, 1),
    Sketcher.Constraint("Coincident", 1, 2, 2, 1),
    Sketcher.Constraint("Coincident", 2, 2, 3, 1),
    Sketcher.Constraint("Coincident", 3, 2, 0, 1),
    Sketcher.Constraint("Vertical", 0),
    Sketcher.Constraint("Horizontal", 1),
    Sketcher.Constraint("Vertical", 2),
    Sketcher.Constraint("Horizontal", 3),
    Sketcher.Constraint("DistanceY", 0, 2, 0, 1, Q("8 mm")),
    Sketcher.Constraint("DistanceX", 1, 2, 1, 1, Q("3.175 mm")),
    Sketcher.Constraint("DistanceX", -1, 1, 1, 2, Q("87.65 mm")),
    Sketcher.Constraint("DistanceY", 0, 2, -1, 1, Q("28.995 mm")),
])
pocket18 = body.newObject("PartDesign::Pocket", "Pocket017")
pocket18.Profile = sketch19
pocket18.Type = "UpToFirst"
pocket18.Reversed = True

# Sketch on XY plane
sketch20 = body.newObject("Sketcher::SketchObject", "Sketch019")
sketch20.AttachmentSupport = (doc.getObject("XY_Plane"), [""])
sketch20.MapMode = "FlatFace"
sketch20.addGeometry([
    Part.LineSegment(App.Vector(10.8, -21, 0), App.Vector(10.8, -29, 0)),
    Part.LineSegment(App.Vector(10.8, -29, 0), App.Vector(7.7, -29, 0)),
    Part.LineSegment(App.Vector(7.7, -29, 0), App.Vector(7.7, -21, 0)),
    Part.LineSegment(App.Vector(7.7, -21, 0), App.Vector(10.8, -21, 0)),
], False)
sketch20.addConstraint([
    Sketcher.Constraint("Coincident", 0, 2, 1, 1),
    Sketcher.Constraint("Coincident", 1, 2, 2, 1),
    Sketcher.Constraint("Coincident", 2, 2, 3, 1),
    Sketcher.Constraint("Coincident", 3, 2, 0, 1),
    Sketcher.Constraint("Vertical", 0),
    Sketcher.Constraint("Horizontal", 1),
    Sketcher.Constraint("Vertical", 2),
    Sketcher.Constraint("Horizontal", 3),
    Sketcher.Constraint("DistanceY", 0, 2, 0, 1, Q("8 mm")),
    Sketcher.Constraint("DistanceX", 1, 2, 1, 1, Q("3.175 mm")),
    Sketcher.Constraint("DistanceX", -1, 1, 1, 2, Q("7.65 mm")),
    Sketcher.Constraint("DistanceY", 0, 2, -1, 1, Q("28.995 mm")),
])
pocket19 = body.newObject("PartDesign::Pocket", "Pocket018")
pocket19.Profile = sketch20
pocket19.Type = "UpToFirst"
pocket19.Reversed = True

doc.recompute()
